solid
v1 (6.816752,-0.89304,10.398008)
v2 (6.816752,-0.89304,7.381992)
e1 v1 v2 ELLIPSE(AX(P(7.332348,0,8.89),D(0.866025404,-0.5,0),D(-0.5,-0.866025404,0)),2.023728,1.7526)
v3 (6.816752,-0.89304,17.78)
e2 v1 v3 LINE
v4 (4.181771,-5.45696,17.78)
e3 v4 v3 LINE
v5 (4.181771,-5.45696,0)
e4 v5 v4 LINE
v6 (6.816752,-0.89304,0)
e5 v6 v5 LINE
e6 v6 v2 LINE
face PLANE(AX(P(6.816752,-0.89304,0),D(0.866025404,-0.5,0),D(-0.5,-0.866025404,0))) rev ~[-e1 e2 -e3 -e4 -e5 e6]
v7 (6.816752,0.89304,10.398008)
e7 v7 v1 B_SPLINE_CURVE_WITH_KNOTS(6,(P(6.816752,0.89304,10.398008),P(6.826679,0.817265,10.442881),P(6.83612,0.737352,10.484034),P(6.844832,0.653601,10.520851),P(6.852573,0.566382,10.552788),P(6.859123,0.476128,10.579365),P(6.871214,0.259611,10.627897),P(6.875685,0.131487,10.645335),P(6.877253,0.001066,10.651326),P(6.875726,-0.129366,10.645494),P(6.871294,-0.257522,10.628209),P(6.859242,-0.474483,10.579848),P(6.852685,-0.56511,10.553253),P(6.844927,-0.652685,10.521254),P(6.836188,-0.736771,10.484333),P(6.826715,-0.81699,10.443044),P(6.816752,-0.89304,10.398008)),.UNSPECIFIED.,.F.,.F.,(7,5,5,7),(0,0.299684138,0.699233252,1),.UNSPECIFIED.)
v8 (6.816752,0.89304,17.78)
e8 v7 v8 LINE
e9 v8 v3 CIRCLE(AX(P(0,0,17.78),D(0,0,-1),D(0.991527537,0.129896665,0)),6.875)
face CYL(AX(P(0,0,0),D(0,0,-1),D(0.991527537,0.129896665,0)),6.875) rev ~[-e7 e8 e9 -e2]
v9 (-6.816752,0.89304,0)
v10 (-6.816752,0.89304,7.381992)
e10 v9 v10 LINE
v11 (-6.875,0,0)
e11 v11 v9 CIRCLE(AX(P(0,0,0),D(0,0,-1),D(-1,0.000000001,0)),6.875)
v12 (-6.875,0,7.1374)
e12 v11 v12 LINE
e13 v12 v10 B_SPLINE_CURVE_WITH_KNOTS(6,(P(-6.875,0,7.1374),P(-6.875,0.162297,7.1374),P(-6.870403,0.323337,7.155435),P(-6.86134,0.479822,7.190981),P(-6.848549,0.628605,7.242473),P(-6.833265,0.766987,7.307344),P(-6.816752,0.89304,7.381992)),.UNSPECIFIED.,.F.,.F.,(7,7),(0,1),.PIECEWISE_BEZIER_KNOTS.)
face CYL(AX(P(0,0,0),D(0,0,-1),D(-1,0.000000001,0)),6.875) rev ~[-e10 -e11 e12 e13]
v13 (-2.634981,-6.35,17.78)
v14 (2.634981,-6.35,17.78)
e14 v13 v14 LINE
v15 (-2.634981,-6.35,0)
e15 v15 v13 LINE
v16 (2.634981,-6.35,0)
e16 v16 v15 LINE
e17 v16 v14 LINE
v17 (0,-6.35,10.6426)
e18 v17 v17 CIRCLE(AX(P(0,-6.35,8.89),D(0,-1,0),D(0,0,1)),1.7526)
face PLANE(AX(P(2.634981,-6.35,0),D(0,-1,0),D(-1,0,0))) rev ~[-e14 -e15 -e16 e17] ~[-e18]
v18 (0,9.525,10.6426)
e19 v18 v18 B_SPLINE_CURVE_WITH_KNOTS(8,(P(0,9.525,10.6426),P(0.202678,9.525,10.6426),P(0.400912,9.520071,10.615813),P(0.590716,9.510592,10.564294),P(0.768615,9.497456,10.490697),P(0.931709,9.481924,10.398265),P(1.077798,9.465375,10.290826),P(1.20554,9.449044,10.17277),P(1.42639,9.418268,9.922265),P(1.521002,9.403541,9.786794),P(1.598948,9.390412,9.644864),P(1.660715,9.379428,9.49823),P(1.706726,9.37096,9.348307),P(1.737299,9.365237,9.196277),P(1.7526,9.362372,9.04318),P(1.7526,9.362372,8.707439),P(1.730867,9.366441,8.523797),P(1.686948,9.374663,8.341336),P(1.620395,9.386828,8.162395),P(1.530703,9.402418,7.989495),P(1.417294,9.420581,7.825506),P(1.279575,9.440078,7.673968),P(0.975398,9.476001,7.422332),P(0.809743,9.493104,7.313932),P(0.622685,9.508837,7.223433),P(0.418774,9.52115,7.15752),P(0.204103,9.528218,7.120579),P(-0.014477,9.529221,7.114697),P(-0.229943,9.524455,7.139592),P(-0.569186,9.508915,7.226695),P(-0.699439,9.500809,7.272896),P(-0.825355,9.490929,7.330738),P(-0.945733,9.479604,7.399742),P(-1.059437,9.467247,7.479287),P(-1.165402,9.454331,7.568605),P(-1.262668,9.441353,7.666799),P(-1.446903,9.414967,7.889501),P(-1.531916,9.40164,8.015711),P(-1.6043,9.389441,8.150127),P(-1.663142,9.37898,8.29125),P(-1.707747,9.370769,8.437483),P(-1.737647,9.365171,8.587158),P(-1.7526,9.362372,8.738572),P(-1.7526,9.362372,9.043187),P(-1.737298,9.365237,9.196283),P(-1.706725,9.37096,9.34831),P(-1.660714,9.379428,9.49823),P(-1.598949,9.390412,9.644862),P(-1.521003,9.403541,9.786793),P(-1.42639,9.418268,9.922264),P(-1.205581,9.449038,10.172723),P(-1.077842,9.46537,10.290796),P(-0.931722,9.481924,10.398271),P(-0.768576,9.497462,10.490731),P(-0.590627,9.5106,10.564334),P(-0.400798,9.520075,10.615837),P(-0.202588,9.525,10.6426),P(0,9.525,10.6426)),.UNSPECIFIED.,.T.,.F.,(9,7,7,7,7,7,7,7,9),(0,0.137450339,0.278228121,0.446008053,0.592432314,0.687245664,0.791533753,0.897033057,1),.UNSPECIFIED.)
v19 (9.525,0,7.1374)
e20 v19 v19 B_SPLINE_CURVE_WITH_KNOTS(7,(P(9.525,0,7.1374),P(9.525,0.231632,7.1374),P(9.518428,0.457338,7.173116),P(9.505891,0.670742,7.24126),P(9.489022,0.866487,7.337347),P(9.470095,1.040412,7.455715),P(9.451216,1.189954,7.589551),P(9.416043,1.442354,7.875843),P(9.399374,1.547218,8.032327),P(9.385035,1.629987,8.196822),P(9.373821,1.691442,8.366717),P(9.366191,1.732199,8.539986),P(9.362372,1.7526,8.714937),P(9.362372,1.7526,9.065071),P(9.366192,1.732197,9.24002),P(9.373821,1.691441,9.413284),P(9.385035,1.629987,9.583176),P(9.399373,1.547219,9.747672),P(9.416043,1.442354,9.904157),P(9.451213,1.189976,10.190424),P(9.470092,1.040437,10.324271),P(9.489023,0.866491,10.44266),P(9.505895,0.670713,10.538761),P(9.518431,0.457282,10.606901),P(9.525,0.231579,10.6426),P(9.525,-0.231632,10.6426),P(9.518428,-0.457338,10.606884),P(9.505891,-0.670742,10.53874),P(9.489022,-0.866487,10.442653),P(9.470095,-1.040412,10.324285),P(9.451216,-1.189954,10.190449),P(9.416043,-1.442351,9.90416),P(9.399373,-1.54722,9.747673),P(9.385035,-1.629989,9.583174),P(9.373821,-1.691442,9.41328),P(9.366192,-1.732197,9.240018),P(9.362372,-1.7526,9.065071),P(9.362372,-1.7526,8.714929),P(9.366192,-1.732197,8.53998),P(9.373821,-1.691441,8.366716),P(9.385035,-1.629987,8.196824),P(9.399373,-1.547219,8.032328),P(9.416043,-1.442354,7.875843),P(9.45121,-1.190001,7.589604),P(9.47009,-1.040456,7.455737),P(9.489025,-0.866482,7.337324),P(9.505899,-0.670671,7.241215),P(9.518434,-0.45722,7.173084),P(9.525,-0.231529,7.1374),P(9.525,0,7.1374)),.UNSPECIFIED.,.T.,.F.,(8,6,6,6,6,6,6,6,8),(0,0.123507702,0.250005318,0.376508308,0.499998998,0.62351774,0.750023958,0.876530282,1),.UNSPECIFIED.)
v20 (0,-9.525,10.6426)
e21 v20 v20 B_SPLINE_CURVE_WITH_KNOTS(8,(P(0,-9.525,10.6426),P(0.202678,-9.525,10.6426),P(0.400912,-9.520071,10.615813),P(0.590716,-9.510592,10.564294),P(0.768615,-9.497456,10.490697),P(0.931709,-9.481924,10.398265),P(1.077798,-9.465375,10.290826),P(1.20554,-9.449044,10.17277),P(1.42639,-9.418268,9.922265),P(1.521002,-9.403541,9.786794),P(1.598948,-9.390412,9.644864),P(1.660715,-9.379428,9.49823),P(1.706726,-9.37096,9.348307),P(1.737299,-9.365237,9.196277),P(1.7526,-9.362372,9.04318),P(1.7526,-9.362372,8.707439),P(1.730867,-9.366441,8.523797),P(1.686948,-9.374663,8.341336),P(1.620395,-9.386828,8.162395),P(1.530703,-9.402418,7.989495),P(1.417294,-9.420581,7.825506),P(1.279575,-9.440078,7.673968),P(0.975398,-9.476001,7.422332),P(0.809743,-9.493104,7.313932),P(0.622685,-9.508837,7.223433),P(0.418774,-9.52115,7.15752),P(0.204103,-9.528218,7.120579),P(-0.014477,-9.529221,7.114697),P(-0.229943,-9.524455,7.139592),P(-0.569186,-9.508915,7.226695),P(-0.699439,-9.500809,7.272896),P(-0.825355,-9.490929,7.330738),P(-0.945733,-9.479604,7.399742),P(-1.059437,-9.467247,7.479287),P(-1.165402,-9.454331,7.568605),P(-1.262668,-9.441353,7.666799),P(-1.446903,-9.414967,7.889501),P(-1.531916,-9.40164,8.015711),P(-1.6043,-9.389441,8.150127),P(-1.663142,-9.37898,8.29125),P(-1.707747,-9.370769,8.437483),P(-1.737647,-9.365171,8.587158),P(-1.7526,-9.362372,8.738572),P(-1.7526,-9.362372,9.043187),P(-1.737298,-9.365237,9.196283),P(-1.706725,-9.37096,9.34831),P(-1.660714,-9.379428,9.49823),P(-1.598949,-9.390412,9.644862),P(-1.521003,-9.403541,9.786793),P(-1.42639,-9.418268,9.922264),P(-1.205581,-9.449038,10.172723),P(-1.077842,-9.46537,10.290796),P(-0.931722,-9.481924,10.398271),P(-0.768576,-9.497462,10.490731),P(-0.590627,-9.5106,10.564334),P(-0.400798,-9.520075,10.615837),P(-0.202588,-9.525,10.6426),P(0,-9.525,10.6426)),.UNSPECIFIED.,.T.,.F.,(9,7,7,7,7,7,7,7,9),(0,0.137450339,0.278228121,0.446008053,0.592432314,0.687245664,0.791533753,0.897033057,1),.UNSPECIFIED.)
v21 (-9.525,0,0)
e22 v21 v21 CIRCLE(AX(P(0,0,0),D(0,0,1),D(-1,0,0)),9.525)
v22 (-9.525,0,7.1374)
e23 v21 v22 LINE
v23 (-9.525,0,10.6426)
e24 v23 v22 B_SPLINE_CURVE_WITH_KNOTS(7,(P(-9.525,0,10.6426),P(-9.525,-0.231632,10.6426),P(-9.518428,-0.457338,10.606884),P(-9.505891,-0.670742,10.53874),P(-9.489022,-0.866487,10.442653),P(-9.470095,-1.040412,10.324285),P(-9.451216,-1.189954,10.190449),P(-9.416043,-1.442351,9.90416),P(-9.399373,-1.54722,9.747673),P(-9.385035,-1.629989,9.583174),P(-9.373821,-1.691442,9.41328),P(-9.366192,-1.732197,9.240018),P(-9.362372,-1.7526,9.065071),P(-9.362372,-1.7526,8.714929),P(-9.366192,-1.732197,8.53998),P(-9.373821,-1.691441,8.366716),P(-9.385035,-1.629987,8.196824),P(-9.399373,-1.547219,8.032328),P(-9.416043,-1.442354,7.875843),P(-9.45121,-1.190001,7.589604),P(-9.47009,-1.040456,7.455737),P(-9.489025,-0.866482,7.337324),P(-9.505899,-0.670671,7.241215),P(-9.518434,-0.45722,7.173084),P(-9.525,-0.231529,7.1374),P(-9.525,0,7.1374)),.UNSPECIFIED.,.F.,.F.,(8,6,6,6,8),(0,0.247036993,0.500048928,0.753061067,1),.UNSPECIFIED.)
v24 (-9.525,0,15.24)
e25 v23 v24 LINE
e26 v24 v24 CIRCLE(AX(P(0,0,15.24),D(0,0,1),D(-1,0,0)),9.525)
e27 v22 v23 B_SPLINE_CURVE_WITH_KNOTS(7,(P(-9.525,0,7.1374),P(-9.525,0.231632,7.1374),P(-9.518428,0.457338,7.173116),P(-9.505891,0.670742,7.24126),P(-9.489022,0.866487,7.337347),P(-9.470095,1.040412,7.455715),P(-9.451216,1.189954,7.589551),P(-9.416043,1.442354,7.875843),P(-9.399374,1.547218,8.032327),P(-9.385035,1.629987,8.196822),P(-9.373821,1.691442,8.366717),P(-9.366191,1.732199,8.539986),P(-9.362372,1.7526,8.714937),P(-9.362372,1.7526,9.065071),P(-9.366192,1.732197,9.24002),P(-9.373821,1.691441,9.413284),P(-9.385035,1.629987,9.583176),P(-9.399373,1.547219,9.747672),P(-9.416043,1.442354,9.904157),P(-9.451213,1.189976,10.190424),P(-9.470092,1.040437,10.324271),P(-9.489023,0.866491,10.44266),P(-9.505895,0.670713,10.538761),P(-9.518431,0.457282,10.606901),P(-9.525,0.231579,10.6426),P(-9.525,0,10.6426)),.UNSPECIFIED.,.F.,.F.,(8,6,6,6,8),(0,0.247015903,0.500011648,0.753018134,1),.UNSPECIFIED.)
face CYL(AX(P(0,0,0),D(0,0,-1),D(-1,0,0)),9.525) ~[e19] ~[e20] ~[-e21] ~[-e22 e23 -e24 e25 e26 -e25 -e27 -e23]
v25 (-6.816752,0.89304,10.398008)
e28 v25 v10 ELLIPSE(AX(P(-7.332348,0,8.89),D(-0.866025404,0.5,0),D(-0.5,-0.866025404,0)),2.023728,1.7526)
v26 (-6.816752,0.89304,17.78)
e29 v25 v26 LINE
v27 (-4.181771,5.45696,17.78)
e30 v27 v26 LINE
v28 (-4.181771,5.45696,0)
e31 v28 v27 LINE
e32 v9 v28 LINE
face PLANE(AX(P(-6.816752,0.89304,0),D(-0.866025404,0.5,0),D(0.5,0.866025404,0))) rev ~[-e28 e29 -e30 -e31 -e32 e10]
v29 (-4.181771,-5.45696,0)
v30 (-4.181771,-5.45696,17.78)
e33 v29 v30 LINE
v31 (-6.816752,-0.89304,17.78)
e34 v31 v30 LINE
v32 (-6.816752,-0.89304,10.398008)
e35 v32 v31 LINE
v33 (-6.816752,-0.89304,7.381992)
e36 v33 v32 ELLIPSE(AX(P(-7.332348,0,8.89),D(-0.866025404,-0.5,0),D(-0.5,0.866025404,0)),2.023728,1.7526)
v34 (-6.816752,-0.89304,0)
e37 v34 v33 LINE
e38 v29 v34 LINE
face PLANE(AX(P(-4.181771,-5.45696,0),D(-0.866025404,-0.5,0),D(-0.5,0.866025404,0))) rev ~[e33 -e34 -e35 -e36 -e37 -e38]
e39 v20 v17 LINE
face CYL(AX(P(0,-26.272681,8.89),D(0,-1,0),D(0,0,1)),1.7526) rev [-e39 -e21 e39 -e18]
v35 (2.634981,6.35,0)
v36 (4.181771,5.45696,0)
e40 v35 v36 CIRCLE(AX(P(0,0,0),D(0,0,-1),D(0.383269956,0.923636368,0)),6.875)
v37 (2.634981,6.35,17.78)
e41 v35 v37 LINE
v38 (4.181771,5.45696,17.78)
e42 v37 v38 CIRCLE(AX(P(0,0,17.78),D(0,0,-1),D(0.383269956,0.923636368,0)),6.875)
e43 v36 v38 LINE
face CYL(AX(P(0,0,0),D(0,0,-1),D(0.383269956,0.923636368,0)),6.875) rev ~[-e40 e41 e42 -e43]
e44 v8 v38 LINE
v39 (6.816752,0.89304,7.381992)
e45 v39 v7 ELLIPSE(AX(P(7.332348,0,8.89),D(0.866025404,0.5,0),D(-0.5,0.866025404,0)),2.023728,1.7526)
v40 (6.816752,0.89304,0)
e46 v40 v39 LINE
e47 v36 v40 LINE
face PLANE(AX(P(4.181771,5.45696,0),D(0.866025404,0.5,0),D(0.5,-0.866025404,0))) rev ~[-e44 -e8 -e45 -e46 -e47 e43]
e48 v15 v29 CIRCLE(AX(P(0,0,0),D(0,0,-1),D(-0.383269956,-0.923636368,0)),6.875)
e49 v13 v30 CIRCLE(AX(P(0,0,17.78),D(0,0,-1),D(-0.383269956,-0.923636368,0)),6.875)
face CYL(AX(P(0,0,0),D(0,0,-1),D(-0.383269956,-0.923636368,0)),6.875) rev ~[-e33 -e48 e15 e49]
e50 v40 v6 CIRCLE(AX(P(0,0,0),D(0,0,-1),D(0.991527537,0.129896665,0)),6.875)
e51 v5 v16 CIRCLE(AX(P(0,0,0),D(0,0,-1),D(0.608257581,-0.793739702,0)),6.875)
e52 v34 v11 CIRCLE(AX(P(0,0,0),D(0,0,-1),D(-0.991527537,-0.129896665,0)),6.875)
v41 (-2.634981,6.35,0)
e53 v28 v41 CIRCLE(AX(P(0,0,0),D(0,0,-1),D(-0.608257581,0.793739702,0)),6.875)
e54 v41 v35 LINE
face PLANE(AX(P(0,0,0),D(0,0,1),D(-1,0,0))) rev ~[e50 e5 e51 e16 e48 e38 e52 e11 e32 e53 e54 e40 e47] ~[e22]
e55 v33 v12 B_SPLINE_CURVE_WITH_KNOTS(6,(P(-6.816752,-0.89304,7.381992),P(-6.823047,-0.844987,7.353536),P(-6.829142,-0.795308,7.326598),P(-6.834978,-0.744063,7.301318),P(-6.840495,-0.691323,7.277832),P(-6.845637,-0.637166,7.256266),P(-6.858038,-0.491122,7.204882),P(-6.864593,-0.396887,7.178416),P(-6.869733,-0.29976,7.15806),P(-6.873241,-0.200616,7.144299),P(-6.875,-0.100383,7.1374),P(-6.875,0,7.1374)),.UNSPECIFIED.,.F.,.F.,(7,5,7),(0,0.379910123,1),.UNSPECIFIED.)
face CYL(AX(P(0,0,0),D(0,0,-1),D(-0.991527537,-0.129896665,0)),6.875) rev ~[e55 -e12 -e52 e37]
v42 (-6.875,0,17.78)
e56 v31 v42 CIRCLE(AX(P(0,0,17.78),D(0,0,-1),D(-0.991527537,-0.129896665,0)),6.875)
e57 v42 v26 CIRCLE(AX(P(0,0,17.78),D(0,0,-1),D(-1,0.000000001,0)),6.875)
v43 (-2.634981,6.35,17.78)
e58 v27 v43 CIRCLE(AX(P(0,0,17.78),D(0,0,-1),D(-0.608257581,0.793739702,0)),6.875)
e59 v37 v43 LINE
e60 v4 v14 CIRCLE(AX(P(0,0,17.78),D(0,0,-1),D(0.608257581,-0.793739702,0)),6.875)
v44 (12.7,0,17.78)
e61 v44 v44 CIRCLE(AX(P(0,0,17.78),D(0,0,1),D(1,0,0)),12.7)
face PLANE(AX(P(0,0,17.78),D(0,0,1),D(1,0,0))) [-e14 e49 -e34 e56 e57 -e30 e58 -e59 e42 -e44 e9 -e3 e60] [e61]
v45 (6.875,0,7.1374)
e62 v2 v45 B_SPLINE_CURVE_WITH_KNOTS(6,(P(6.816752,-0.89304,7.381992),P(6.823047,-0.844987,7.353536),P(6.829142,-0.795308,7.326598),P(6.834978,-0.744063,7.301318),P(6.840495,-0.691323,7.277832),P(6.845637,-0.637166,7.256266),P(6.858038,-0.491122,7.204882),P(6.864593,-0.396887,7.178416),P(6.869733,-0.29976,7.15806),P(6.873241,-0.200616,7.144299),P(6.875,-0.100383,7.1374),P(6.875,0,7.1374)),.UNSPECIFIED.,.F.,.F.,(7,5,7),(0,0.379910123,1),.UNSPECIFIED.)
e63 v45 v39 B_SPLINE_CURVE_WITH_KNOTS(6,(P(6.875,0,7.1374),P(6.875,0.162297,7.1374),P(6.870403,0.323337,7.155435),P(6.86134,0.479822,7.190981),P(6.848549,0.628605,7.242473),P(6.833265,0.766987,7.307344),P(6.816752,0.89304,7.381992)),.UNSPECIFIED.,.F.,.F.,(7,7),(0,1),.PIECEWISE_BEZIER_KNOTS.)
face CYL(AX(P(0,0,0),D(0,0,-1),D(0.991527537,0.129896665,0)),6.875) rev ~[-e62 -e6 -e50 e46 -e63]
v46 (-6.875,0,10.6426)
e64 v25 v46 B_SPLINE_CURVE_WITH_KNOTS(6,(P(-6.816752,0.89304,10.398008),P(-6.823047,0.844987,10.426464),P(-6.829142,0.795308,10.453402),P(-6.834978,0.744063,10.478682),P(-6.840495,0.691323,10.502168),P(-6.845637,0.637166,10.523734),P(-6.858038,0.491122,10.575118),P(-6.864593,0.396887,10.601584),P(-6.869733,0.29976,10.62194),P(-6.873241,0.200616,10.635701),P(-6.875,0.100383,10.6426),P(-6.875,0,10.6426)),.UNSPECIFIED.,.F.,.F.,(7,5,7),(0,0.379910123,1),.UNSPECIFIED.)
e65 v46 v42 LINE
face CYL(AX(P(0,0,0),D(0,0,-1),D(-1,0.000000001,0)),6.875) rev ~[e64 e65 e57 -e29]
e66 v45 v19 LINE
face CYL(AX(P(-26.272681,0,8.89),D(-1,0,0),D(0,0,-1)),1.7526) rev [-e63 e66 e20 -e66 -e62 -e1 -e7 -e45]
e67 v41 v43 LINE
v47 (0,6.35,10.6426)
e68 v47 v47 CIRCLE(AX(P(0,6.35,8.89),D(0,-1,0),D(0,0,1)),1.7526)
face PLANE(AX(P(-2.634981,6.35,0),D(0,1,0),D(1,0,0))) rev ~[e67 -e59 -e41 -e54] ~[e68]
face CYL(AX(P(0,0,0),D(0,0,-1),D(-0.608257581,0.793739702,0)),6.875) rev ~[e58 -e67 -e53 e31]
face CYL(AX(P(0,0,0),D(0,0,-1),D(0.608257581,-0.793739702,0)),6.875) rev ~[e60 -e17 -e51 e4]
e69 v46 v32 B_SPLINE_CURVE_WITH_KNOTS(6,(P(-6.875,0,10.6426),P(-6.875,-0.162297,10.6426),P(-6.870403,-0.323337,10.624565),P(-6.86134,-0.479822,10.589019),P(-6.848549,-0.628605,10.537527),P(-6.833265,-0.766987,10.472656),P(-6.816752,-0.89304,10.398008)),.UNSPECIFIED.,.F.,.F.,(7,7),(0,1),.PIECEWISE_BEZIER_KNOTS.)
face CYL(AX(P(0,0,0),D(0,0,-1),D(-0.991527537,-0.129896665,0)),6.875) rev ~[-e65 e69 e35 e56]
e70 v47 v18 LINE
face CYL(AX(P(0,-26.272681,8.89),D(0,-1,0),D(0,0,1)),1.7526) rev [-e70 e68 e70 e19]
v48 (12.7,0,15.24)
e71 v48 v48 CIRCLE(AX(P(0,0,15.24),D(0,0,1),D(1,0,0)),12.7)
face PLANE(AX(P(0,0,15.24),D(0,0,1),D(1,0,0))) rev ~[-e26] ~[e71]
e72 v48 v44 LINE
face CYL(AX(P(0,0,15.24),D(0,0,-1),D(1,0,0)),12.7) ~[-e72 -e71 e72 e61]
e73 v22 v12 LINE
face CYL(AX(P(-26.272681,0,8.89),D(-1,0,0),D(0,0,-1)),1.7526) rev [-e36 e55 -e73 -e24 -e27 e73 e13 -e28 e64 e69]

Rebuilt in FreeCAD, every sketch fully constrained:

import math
import FreeCAD as App
import Part
import Sketcher

V = App.Vector
Q = App.Units.Quantity

doc = App.newDocument("Part")
params = doc.addObject("Spreadsheet::Sheet", "Params")
for row, (alias, value) in enumerate([
    ("sketch1_diameter", "0.75 in"),
    ("pad1_length", "0.6 in"),
    ("sketch2_diameter", "1 in"),
    ("pad2_length", "0.1 in"),
    ("sketch4_diameter", "0.138 in"),
    ("sketch5_diameter", "0.138 in"),
], start=1):
    params.set(f"A{row}", alias)
    params.set(f"B{row}", "=" + value)
    params.setAlias(f"B{row}", alias)

body = doc.addObject("PartDesign::Body", "Body")

# Sketch on XY plane
sketch1 = body.newObject("Sketcher::SketchObject", "Sketch")
sketch1.AttachmentSupport = (doc.getObject("XY_Plane"), [""])
sketch1.MapMode = "FlatFace"
sketch1.addGeometry(Part.Circle(V(0, 0, 0), V(0, 0, 1), 9.525), False)
sketch1.addConstraint([
    Sketcher.Constraint("Coincident", 0, 3, -1, 1),
    Sketcher.Constraint("Diameter", 0, Q("0.75 in")),
])
sketch1.setExpression("Constraints[1]", "Params.sketch1_diameter")
pad1 = body.newObject("PartDesign::Pad", "Pad")
pad1.Profile = sketch1
pad1.setExpression("Length", "Params.pad1_length")

# Sketch on XY plane
sketch2 = body.newObject("Sketcher::SketchObject", "Sketch001")
sketch2.AttachmentSupport = (doc.getObject("XY_Plane"), [""])
sketch2.MapMode = "FlatFace"
sketch2.AttachmentOffset = App.Placement(V(0, 0, 0.6 * 25.4), App.Rotation())
sketch2.addGeometry(Part.Circle(V(0, 0, 0), V(0, 0, 1), 12.7), False)
sketch2.addConstraint([
    Sketcher.Constraint("Coincident", 0, 3, -1, 1),
    Sketcher.Constraint("Diameter", 0, Q("1 in")),
])
sketch2.setExpression("Constraints[1]", "Params.sketch2_diameter")
pad2 = body.newObject("PartDesign::Pad", "Pad001")
pad2.Profile = sketch2
pad2.setExpression("Length", "Params.pad2_length")

# Sketch on XY plane
sketch3 = body.newObject("Sketcher::SketchObject", "Sketch002")
sketch3.AttachmentSupport = (doc.getObject("XY_Plane"), [""])
sketch3.MapMode = "FlatFace"
sketch3.addGeometry([
    Part.ArcOfCircle(Part.Circle(V(0, 0, 0), V(0, 0, 1), 6.875), math.radians(112.536379), math.radians(127.463621)),  # 0
    Part.LineSegment(V(-2.634981, 6.35, 0), V(2.634981, 6.35, 0)),  # 1
    Part.ArcOfCircle(Part.Circle(V(0, 0, 0), V(0, 0, 1), 6.875), math.radians(52.536379), math.radians(67.463621)),  # 2
    Part.LineSegment(V(4.181771, 5.45696, 0), V(6.816752, 0.89304, 0)),  # 3
    Part.ArcOfCircle(Part.Circle(V(0, 0, 0), V(0, 0, 1), 6.875), math.radians(-7.463621), math.radians(7.463621)),  # 4
    Part.LineSegment(V(6.816752, -0.89304, 0), V(4.181771, -5.45696, 0)),  # 5
    Part.ArcOfCircle(Part.Circle(V(0, 0, 0), V(0, 0, 1), 6.875), math.radians(-67.463621), math.radians(-52.536379)),  # 6
    Part.LineSegment(V(2.634981, -6.35, 0), V(-2.634981, -6.35, 0)),  # 7
    Part.ArcOfCircle(Part.Circle(V(0, 0, 0), V(0, 0, 1), 6.875), math.radians(-127.463621), math.radians(-112.536379)),  # 8
    Part.LineSegment(V(-4.181771, -5.45696, 0), V(-6.816752, -0.89304, 0)),  # 9
    Part.ArcOfCircle(Part.Circle(V(0, 0, 0), V(0, 0, 1), 6.875), math.radians(-180), math.radians(-172.536379)),  # 10
    Part.ArcOfCircle(Part.Circle(V(0, 0, 0), V(0, 0, 1), 6.875), math.radians(172.536379), math.radians(180)),  # 11
    Part.LineSegment(V(-6.816752, 0.89304, 0), V(-4.181771, 5.45696, 0)),  # 12
], False)
sketch3.addConstraint([
    Sketcher.Constraint("Coincident", 0, 1, 1, 1),
    Sketcher.Constraint("Coincident", 1, 2, 2, 2),
    Sketcher.Constraint("Coincident", 2, 1, 3, 1),
    Sketcher.Constraint("Coincident", 3, 2, 4, 2),
    Sketcher.Constraint("Coincident", 4, 1, 5, 1),
    Sketcher.Constraint("Coincident", 5, 2, 6, 2),
    Sketcher.Constraint("Coincident", 6, 1, 7, 1),
    Sketcher.Constraint("Coincident", 7, 2, 8, 2),
    Sketcher.Constraint("Coincident", 8, 1, 9, 1),
    Sketcher.Constraint("Coincident", 9, 2, 10, 2),
    Sketcher.Constraint("Tangent", 10, 1, 11, 2),
    Sketcher.Constraint("Coincident", 11, 1, 12, 1),
    Sketcher.Constraint("Coincident", 12, 2, 0, 2),
    Sketcher.Constraint("Horizontal", 1),
    Sketcher.Constraint("Horizontal", 7),
    Sketcher.Constraint("Coincident", 0, 3, -1, 1),
    Sketcher.Constraint("Coincident", 2, 3, -1, 1),
    Sketcher.Constraint("Coincident", 4, 3, -1, 1),
    Sketcher.Constraint("Coincident", 6, 3, -1, 1),
    Sketcher.Constraint("Coincident", 8, 3, -1, 1),
    Sketcher.Constraint("Coincident", 10, 3, -1, 1),
    Sketcher.Constraint("Equal", 0, 2),
    Sketcher.Constraint("Equal", 2, 4),
    Sketcher.Constraint("Equal", 4, 6),
    Sketcher.Constraint("Equal", 6, 8),
    Sketcher.Constraint("Equal", 8, 10),
    Sketcher.Constraint("Equal", 10, 11),
    Sketcher.Constraint("PointOnObject", 10, 1, -1),
    Sketcher.Constraint("Parallel", 3, 9),
    Sketcher.Constraint("Parallel", 5, 12),
    Sketcher.Constraint("Horizontal", 5, 2, 8, 1),
    Sketcher.Constraint("Horizontal", 4, 1, 9, 2),
    Sketcher.Constraint("Horizontal", 3, 2, 11, 1),
    Sketcher.Constraint("Vertical", 3, 2, 4, 1),
    Sketcher.Constraint("Vertical", 1, 2, 6, 1),
    Sketcher.Constraint("Angle", 3, Q("-60 deg")),
    Sketcher.Constraint("DistanceY", -1, 1, 0, 1, Q("0.25 in")),
    Sketcher.Constraint("Radius", 0, 6.875),
    Sketcher.Constraint("Distance", 3, 5.269962),
])
pocket1 = body.newObject("PartDesign::Pocket", "Pocket")
pocket1.Profile = sketch3
pocket1.Type = "ThroughAll"
pocket1.Reversed = True

# Sketch on YZ plane
sketch4 = body.newObject("Sketcher::SketchObject", "Sketch003")
sketch4.AttachmentSupport = (doc.getObject("YZ_Plane"), [""])
sketch4.MapMode = "FlatFace"
sketch4.addGeometry(Part.Circle(V(0, 8.89, 0), V(0, 0, 1), 1.7526), False)
sketch4.addConstraint([
    Sketcher.Constraint("PointOnObject", 0, 3, -2),
    Sketcher.Constraint("Diameter", 0, Q("0.138 in")),
    Sketcher.Constraint("DistanceY", -1, 1, 0, 3, Q("0.35 in")),
])
sketch4.setExpression("Constraints[1]", "Params.sketch4_diameter")
pocket2 = body.newObject("PartDesign::Pocket", "Pocket001")
pocket2.Profile = sketch4
pocket2.Type = "ThroughAll"
pocket2.Midplane = True

# Sketch on XZ plane
sketch5 = body.newObject("Sketcher::SketchObject", "Sketch004")
sketch5.AttachmentSupport = (doc.getObject("XZ_Plane"), [""])
sketch5.MapMode = "FlatFace"
sketch5.addGeometry(Part.Circle(V(0, 8.89, 0), V(0, 0, 1), 1.7526), False)
sketch5.addConstraint([
    Sketcher.Constraint("PointOnObject", 0, 3, -2),
    Sketcher.Constraint("Diameter", 0, Q("0.138 in")),
    Sketcher.Constraint("DistanceY", -1, 1, 0, 3, Q("0.35 in")),
])
sketch5.setExpression("Constraints[1]", "Params.sketch5_diameter")
pocket3 = body.newObject("PartDesign::Pocket", "Pocket002")
pocket3.Profile = sketch5
pocket3.Type = "ThroughAll"
pocket3.Midplane = True

doc.recompute()
